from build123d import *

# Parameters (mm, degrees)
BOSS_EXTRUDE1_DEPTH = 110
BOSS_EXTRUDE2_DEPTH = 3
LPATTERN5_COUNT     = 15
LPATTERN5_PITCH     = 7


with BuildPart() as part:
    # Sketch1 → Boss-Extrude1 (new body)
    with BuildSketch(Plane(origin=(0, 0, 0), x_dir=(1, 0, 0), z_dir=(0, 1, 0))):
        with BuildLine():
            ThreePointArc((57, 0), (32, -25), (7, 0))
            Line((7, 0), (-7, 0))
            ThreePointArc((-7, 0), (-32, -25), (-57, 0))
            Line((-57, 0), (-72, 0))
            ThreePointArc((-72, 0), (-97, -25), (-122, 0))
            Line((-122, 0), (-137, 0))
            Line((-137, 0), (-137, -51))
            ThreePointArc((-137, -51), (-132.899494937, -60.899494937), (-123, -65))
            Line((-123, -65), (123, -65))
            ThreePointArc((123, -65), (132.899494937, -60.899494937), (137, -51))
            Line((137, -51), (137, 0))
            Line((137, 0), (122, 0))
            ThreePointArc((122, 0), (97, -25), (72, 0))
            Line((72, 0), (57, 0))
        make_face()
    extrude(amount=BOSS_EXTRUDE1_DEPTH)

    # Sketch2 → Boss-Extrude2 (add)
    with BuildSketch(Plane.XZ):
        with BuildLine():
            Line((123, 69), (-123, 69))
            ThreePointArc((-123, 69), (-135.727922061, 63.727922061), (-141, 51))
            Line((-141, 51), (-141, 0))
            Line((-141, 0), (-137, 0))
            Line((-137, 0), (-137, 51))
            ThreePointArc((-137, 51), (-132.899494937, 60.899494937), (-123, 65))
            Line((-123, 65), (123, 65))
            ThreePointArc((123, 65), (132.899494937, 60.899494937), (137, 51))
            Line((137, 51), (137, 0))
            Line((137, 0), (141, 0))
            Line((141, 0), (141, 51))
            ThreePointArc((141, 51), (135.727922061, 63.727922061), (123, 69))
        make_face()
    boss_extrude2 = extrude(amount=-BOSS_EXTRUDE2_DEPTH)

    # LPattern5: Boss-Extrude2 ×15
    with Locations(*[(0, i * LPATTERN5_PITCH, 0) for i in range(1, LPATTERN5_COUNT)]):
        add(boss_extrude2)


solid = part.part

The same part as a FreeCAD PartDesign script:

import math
import FreeCAD as App
import Part
import Sketcher
from FreeCAD import Vector

doc = App.newDocument("Part")
body = doc.addObject("PartDesign::Body", "Body")

sketch1 = doc.addObject("Sketcher::SketchObject", "Sketch")
body.addObject(sketch1)
sketch1.AttachmentSupport = (doc.XZ_Plane, [""])
sketch1.MapMode = "FlatFace"
sketch1.addGeometry([
    Part.ArcOfCircle(Part.Circle(Vector(32, 0, 0), Vector(0, 0, 1), 25), math.radians(0), math.radians(180)),
    Part.LineSegment(Vector(7, 0, 0), Vector(-7, 0, 0)),
    Part.ArcOfCircle(Part.Circle(Vector(-32, 0, 0), Vector(0, 0, 1), 25), math.radians(0), math.radians(180)),
    Part.LineSegment(Vector(-57, 0, 0), Vector(-72, 0, 0)),
    Part.ArcOfCircle(Part.Circle(Vector(-97, 0, 0), Vector(0, 0, 1), 25), math.radians(0), math.radians(180)),
    Part.LineSegment(Vector(-122, 0, 0), Vector(-137, 0, 0)),
    Part.LineSegment(Vector(-137, 0, 0), Vector(-137, 51, 0)),
    Part.ArcOfCircle(Part.Circle(Vector(-123, 51, 0), Vector(0, 0, 1), 14), math.radians(90), math.radians(180)),
    Part.LineSegment(Vector(-123, 65, 0), Vector(123, 65, 0)),
    Part.ArcOfCircle(Part.Circle(Vector(123, 51, 0), Vector(0, 0, 1), 14), math.radians(0), math.radians(90)),
    Part.LineSegment(Vector(137, 51, 0), Vector(137, 0, 0)),
    Part.LineSegment(Vector(137, 0, 0), Vector(122, 0, 0)),
    Part.ArcOfCircle(Part.Circle(Vector(97, 0, 0), Vector(0, 0, 1), 25), math.radians(0), math.radians(180)),
    Part.LineSegment(Vector(72, 0, 0), Vector(57, 0, 0)),
], False)
sketch1.addConstraint([
    Sketcher.Constraint("Coincident", 0, 2, 1, 1),
    Sketcher.Constraint("Coincident", 1, 2, 2, 1),
    Sketcher.Constraint("Coincident", 2, 2, 3, 1),
    Sketcher.Constraint("Coincident", 3, 2, 4, 1),
    Sketcher.Constraint("Coincident", 4, 2, 5, 1),
    Sketcher.Constraint("Coincident", 5, 2, 6, 1),
    Sketcher.Constraint("Tangent", 6, 2, 7, 2),
    Sketcher.Constraint("Tangent", 7, 1, 8, 1),
    Sketcher.Constraint("Tangent", 8, 2, 9, 2),
    Sketcher.Constraint("Tangent", 9, 1, 10, 1),
    Sketcher.Constraint("Coincident", 10, 2, 11, 1),
    Sketcher.Constraint("Coincident", 11, 2, 12, 1),
    Sketcher.Constraint("Coincident", 12, 2, 13, 1),
    Sketcher.Constraint("Coincident", 13, 2, 0, 1),
    Sketcher.Constraint("Horizontal", 1),
    Sketcher.Constraint("Horizontal", 3),
    Sketcher.Constraint("Horizontal", 5),
    Sketcher.Constraint("Vertical", 6),
    Sketcher.Constraint("Horizontal", 8),
    Sketcher.Constraint("Vertical", 10),
    Sketcher.Constraint("Horizontal", 11),
    Sketcher.Constraint("Horizontal", 13),
    Sketcher.Constraint("Equal", 0, 2),
    Sketcher.Constraint("Equal", 2, 4),
    Sketcher.Constraint("Equal", 7, 9),
    Sketcher.Constraint("Equal", 4, 12),
    Sketcher.Constraint("Symmetric", 0, 3, 2, 3, -1, 1),
    Sketcher.Constraint("Symmetric", 4, 3, 12, 3, -1, 1),
    Sketcher.Constraint("Symmetric", 5, 2, 10, 2, -1, 1),
    Sketcher.Constraint("PointOnObject", 0, 3, -1),
    Sketcher.Constraint("PointOnObject", 4, 3, -1),
    Sketcher.Constraint("PointOnObject", 0, 2, -1),
    Sketcher.Constraint("PointOnObject", 2, 2, -1),
    Sketcher.Constraint("PointOnObject", 4, 2, -1),
    Sketcher.Constraint("PointOnObject", 12, 2, -1),
    Sketcher.Constraint("Equal", 3, 5),
    Sketcher.Constraint("Radius", 0, 25.0),
    Sketcher.Constraint("Radius", 7, 14.0),
    Sketcher.Constraint("DistanceX", 1, 2, 1, 1, 14.0),
    Sketcher.Constraint("DistanceX", 3, 2, 3, 1, 15.0),
    Sketcher.Constraint("DistanceY", 6, 1, 6, 2, 51.0),
])
pad1 = doc.addObject("PartDesign::Pad", "Pad")
body.addObject(pad1)
pad1.Profile = sketch1
pad1.Length = 110
pad1.Reversed = True

sketch2 = doc.addObject("Sketcher::SketchObject", "Sketch001")
body.addObject(sketch2)
sketch2.AttachmentSupport = (doc.XZ_Plane, [""])
sketch2.MapMode = "FlatFace"
sketch2.addGeometry([
    Part.LineSegment(Vector(123, 69, 0), Vector(-123, 69, 0)),
    Part.ArcOfCircle(Part.Circle(Vector(-123, 51, 0), Vector(0, 0, 1), 18), math.radians(90), math.radians(180)),
    Part.LineSegment(Vector(-141, 51, 0), Vector(-141, 0, 0)),
    Part.LineSegment(Vector(-141, 0, 0), Vector(-137, 0, 0)),
    Part.LineSegment(Vector(-137, 0, 0), Vector(-137, 51, 0)),
    Part.ArcOfCircle(Part.Circle(Vector(-123, 51, 0), Vector(0, 0, 1), 14), math.radians(90), math.radians(180)),
    Part.LineSegment(Vector(-123, 65, 0), Vector(123, 65, 0)),
    Part.ArcOfCircle(Part.Circle(Vector(123, 51, 0), Vector(0, 0, 1), 14), math.radians(0), math.radians(90)),
    Part.LineSegment(Vector(137, 51, 0), Vector(137, 0, 0)),
    Part.LineSegment(Vector(137, 0, 0), Vector(141, 0, 0)),
    Part.LineSegment(Vector(141, 0, 0), Vector(141, 51, 0)),
    Part.ArcOfCircle(Part.Circle(Vector(123, 51, 0), Vector(0, 0, 1), 18), math.radians(0), math.radians(90)),
], False)
sketch2.addConstraint([
    Sketcher.Constraint("Tangent", 0, 2, 1, 1),
    Sketcher.Constraint("Tangent", 1, 2, 2, 1),
    Sketcher.Constraint("Coincident", 2, 2, 3, 1),
    Sketcher.Constraint("Coincident", 3, 2, 4, 1),
    Sketcher.Constraint("Tangent", 4, 2, 5, 2),
    Sketcher.Constraint("Tangent", 5, 1, 6, 1),
    Sketcher.Constraint("Tangent", 6, 2, 7, 2),
    Sketcher.Constraint("Tangent", 7, 1, 8, 1),
    Sketcher.Constraint("Coincident", 8, 2, 9, 1),
    Sketcher.Constraint("Coincident", 9, 2, 10, 1),
    Sketcher.Constraint("Tangent", 10, 2, 11, 1),
    Sketcher.Constraint("Tangent", 11, 2, 0, 1),
    Sketcher.Constraint("Horizontal", 0),
    Sketcher.Constraint("Vertical", 2),
    Sketcher.Constraint("Horizontal", 3),
    Sketcher.Constraint("Vertical", 4),
    Sketcher.Constraint("Horizontal", 6),
    Sketcher.Constraint("Vertical", 8),
    Sketcher.Constraint("Horizontal", 9),
    Sketcher.Constraint("Vertical", 10),
    Sketcher.Constraint("Coincident", 5, 3, 1, 3),
    Sketcher.Constraint("Coincident", 11, 3, 7, 3),
    Sketcher.Constraint("Equal", 5, 7),
    Sketcher.Constraint("Symmetric", 3, 2, 8, 2, -1, 1),
    Sketcher.Constraint("PointOnObject", 2, 2, -1),
    Sketcher.Constraint("Radius", 1, 18.0),
    Sketcher.Constraint("Radius", 5, 14.0),
    Sketcher.Constraint("DistanceX", 0, 2, 0, 1, 246.0),
    Sketcher.Constraint("DistanceY", 2, 2, 2, 1, 51.0),
])
pad2 = doc.addObject("PartDesign::Pad", "Pad001")
body.addObject(pad2)
pad2.Profile = sketch2
pad2.Length = 3
pad2.Reversed = True
doc.recompute()

linearpattern = doc.addObject("PartDesign::LinearPattern", "LinearPattern")
body.addObject(linearpattern)
linearpattern.Originals = [pad2]
linearpattern.Direction = (doc.Y_Axis, [""])
linearpattern.Mode = "offset"
linearpattern.Offset = 7
linearpattern.Occurrences = 15
body.Tip = linearpattern

doc.recompute()
